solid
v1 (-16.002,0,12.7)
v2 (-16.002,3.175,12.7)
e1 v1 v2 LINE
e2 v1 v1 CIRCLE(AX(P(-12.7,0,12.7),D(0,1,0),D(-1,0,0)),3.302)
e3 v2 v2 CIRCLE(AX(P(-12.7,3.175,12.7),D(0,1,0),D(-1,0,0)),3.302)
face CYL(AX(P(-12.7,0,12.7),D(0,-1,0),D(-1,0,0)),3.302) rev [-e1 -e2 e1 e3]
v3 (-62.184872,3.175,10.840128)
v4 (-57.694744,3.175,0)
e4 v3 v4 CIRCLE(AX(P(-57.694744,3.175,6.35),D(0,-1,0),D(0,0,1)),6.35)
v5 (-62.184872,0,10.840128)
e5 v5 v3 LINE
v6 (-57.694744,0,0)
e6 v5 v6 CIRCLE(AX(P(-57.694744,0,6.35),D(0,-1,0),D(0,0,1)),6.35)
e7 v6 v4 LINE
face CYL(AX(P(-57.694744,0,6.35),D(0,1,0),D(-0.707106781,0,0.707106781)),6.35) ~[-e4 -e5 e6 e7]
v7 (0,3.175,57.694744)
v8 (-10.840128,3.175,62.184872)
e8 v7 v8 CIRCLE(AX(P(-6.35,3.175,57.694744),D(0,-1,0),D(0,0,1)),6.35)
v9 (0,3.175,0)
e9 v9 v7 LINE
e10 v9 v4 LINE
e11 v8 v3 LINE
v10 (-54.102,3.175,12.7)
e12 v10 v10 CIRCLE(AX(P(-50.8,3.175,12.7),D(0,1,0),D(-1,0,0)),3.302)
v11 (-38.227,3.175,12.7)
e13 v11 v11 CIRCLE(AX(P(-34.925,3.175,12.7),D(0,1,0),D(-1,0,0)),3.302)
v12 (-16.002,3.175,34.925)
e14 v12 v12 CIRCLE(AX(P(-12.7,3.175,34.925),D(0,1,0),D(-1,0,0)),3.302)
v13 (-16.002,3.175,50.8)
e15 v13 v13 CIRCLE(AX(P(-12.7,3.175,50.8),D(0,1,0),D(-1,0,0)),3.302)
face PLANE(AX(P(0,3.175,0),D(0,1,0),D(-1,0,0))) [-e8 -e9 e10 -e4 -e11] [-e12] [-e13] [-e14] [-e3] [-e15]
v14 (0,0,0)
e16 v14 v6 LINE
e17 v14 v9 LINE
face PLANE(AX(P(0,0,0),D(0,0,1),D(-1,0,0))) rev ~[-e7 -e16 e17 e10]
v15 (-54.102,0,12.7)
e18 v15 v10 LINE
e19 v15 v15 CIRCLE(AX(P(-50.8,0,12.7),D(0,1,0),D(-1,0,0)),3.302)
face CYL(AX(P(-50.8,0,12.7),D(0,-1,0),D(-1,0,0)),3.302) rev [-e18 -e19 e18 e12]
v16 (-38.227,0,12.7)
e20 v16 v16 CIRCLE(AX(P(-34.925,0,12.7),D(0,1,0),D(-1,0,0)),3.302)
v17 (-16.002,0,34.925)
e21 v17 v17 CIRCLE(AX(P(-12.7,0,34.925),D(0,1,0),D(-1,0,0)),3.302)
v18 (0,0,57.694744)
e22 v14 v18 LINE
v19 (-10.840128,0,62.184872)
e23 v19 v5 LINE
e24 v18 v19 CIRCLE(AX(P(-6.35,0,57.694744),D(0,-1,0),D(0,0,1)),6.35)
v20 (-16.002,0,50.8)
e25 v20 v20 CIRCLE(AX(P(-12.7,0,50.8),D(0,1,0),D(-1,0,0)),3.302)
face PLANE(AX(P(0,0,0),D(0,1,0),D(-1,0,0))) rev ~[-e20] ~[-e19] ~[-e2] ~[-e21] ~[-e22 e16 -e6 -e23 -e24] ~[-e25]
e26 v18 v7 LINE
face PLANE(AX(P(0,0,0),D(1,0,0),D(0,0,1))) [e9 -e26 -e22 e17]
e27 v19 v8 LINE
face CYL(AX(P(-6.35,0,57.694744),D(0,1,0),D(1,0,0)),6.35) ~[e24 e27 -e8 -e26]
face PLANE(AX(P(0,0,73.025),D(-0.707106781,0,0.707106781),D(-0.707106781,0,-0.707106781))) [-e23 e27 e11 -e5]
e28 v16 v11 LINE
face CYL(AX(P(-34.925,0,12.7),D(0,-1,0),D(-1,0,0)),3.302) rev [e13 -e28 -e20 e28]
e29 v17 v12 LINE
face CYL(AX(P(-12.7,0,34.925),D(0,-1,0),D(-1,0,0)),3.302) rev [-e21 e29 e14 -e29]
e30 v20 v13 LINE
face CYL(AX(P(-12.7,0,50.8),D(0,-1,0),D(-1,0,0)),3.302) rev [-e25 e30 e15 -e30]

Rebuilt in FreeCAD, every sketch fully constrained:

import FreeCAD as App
import Part
import Sketcher

V = App.Vector
Q = App.Units.Quantity


def edges_at(feature, points):
    """Names of the edges that pass closest to the given points."""
    edges = feature.Shape.Edges
    near = lambda p: min(range(len(edges)), key=lambda i: edges[i].distToShape(Part.Vertex(*p))[0])
    return sorted({f"Edge{near(p) + 1}" for p in points})


def add_polygon(sketch, points):
    """Adds a closed chain of lines whose ends are joined by coincident constraints."""
    first, n = sketch.GeometryCount, len(points)
    for a, b in zip(points, points[1:] + points[:1]):
        sketch.addGeometry(Part.LineSegment(App.Vector(*a, 0), App.Vector(*b, 0)), False)
    for i in range(n):
        sketch.addConstraint(Sketcher.Constraint("Coincident", first + i, 2, first + (i + 1) % n, 1))

doc = App.newDocument("Part")
body = doc.addObject("PartDesign::Body", "Body")

# Sketch on XZ plane
sketch1 = doc.addObject("Sketcher::SketchObject", "Sketch")
body.addObject(sketch1)
sketch1.AttachmentSupport = (doc.XZ_Plane, [""])
sketch1.MapMode = "FlatFace"
add_polygon(sketch1, [(0, 73.025), (0, 0), (-73.025, 0)])  # lines 0-2
sketch1.addGeometry(Part.Circle(V(-12.7, 12.7, 0), V(0, 0, 1), 3.302), False)  # 3
sketch1.addGeometry(Part.Circle(V(-34.925, 12.7, 0), V(0, 0, 1), 3.302), False)  # 4
sketch1.addGeometry(Part.Circle(V(-12.7, 34.925, 0), V(0, 0, 1), 3.302), False)  # 5
sketch1.addGeometry(Part.Circle(V(-50.8, 12.7, 0), V(0, 0, 1), 3.302), False)  # 6
sketch1.addGeometry(Part.Circle(V(-12.7, 50.8, 0), V(0, 0, 1), 3.302), False)  # 7
sketch1.addConstraint([
    Sketcher.Constraint("Vertical", 0),
    Sketcher.Constraint("Horizontal", 1),
    Sketcher.Constraint("Coincident", 0, 2, -1, 1),
    Sketcher.Constraint("Equal", 3, 4),
    Sketcher.Constraint("Equal", 4, 5),
    Sketcher.Constraint("Equal", 5, 6),
    Sketcher.Constraint("Equal", 6, 7),
    Sketcher.Constraint("Horizontal", 3, 3, 4, 3),
    Sketcher.Constraint("Horizontal", 4, 3, 6, 3),
    Sketcher.Constraint("Vertical", 3, 3, 5, 3),
    Sketcher.Constraint("Vertical", 5, 3, 7, 3),
    Sketcher.Constraint("Equal", 1, 0),
    Sketcher.Constraint("Diameter", 3, Q("0.26 in")),
    Sketcher.Constraint("DistanceX", 3, 3, -1, 1, Q("0.5 in")),
    Sketcher.Constraint("DistanceY", -1, 1, 3, 3, Q("0.5 in")),
    Sketcher.Constraint("DistanceX", 1, 2, 1, 1, Q("2.875 in")),
    Sketcher.Constraint("DistanceX", 4, 3, -1, 1, Q("1.375 in")),
    Sketcher.Constraint("DistanceY", -1, 1, 5, 3, Q("1.375 in")),
    Sketcher.Constraint("DistanceX", 6, 3, -1, 1, Q("2 in")),
    Sketcher.Constraint("DistanceY", -1, 1, 7, 3, Q("2 in")),
])
pad1 = doc.addObject("PartDesign::Pad", "Pad")
body.addObject(pad1)
pad1.Profile = sketch1
pad1.Length = Q("0.125 in")
pad1.Reversed = True
doc.recompute()

fillet = doc.addObject("PartDesign::Fillet", "Fillet")
body.addObject(fillet)
fillet.Base = (pad1, edges_at(pad1, [(0, 1.587, 73.025), (-73.025, 1.587, 0)]))
fillet.Radius = Q("0.25 in")

doc.recompute()
